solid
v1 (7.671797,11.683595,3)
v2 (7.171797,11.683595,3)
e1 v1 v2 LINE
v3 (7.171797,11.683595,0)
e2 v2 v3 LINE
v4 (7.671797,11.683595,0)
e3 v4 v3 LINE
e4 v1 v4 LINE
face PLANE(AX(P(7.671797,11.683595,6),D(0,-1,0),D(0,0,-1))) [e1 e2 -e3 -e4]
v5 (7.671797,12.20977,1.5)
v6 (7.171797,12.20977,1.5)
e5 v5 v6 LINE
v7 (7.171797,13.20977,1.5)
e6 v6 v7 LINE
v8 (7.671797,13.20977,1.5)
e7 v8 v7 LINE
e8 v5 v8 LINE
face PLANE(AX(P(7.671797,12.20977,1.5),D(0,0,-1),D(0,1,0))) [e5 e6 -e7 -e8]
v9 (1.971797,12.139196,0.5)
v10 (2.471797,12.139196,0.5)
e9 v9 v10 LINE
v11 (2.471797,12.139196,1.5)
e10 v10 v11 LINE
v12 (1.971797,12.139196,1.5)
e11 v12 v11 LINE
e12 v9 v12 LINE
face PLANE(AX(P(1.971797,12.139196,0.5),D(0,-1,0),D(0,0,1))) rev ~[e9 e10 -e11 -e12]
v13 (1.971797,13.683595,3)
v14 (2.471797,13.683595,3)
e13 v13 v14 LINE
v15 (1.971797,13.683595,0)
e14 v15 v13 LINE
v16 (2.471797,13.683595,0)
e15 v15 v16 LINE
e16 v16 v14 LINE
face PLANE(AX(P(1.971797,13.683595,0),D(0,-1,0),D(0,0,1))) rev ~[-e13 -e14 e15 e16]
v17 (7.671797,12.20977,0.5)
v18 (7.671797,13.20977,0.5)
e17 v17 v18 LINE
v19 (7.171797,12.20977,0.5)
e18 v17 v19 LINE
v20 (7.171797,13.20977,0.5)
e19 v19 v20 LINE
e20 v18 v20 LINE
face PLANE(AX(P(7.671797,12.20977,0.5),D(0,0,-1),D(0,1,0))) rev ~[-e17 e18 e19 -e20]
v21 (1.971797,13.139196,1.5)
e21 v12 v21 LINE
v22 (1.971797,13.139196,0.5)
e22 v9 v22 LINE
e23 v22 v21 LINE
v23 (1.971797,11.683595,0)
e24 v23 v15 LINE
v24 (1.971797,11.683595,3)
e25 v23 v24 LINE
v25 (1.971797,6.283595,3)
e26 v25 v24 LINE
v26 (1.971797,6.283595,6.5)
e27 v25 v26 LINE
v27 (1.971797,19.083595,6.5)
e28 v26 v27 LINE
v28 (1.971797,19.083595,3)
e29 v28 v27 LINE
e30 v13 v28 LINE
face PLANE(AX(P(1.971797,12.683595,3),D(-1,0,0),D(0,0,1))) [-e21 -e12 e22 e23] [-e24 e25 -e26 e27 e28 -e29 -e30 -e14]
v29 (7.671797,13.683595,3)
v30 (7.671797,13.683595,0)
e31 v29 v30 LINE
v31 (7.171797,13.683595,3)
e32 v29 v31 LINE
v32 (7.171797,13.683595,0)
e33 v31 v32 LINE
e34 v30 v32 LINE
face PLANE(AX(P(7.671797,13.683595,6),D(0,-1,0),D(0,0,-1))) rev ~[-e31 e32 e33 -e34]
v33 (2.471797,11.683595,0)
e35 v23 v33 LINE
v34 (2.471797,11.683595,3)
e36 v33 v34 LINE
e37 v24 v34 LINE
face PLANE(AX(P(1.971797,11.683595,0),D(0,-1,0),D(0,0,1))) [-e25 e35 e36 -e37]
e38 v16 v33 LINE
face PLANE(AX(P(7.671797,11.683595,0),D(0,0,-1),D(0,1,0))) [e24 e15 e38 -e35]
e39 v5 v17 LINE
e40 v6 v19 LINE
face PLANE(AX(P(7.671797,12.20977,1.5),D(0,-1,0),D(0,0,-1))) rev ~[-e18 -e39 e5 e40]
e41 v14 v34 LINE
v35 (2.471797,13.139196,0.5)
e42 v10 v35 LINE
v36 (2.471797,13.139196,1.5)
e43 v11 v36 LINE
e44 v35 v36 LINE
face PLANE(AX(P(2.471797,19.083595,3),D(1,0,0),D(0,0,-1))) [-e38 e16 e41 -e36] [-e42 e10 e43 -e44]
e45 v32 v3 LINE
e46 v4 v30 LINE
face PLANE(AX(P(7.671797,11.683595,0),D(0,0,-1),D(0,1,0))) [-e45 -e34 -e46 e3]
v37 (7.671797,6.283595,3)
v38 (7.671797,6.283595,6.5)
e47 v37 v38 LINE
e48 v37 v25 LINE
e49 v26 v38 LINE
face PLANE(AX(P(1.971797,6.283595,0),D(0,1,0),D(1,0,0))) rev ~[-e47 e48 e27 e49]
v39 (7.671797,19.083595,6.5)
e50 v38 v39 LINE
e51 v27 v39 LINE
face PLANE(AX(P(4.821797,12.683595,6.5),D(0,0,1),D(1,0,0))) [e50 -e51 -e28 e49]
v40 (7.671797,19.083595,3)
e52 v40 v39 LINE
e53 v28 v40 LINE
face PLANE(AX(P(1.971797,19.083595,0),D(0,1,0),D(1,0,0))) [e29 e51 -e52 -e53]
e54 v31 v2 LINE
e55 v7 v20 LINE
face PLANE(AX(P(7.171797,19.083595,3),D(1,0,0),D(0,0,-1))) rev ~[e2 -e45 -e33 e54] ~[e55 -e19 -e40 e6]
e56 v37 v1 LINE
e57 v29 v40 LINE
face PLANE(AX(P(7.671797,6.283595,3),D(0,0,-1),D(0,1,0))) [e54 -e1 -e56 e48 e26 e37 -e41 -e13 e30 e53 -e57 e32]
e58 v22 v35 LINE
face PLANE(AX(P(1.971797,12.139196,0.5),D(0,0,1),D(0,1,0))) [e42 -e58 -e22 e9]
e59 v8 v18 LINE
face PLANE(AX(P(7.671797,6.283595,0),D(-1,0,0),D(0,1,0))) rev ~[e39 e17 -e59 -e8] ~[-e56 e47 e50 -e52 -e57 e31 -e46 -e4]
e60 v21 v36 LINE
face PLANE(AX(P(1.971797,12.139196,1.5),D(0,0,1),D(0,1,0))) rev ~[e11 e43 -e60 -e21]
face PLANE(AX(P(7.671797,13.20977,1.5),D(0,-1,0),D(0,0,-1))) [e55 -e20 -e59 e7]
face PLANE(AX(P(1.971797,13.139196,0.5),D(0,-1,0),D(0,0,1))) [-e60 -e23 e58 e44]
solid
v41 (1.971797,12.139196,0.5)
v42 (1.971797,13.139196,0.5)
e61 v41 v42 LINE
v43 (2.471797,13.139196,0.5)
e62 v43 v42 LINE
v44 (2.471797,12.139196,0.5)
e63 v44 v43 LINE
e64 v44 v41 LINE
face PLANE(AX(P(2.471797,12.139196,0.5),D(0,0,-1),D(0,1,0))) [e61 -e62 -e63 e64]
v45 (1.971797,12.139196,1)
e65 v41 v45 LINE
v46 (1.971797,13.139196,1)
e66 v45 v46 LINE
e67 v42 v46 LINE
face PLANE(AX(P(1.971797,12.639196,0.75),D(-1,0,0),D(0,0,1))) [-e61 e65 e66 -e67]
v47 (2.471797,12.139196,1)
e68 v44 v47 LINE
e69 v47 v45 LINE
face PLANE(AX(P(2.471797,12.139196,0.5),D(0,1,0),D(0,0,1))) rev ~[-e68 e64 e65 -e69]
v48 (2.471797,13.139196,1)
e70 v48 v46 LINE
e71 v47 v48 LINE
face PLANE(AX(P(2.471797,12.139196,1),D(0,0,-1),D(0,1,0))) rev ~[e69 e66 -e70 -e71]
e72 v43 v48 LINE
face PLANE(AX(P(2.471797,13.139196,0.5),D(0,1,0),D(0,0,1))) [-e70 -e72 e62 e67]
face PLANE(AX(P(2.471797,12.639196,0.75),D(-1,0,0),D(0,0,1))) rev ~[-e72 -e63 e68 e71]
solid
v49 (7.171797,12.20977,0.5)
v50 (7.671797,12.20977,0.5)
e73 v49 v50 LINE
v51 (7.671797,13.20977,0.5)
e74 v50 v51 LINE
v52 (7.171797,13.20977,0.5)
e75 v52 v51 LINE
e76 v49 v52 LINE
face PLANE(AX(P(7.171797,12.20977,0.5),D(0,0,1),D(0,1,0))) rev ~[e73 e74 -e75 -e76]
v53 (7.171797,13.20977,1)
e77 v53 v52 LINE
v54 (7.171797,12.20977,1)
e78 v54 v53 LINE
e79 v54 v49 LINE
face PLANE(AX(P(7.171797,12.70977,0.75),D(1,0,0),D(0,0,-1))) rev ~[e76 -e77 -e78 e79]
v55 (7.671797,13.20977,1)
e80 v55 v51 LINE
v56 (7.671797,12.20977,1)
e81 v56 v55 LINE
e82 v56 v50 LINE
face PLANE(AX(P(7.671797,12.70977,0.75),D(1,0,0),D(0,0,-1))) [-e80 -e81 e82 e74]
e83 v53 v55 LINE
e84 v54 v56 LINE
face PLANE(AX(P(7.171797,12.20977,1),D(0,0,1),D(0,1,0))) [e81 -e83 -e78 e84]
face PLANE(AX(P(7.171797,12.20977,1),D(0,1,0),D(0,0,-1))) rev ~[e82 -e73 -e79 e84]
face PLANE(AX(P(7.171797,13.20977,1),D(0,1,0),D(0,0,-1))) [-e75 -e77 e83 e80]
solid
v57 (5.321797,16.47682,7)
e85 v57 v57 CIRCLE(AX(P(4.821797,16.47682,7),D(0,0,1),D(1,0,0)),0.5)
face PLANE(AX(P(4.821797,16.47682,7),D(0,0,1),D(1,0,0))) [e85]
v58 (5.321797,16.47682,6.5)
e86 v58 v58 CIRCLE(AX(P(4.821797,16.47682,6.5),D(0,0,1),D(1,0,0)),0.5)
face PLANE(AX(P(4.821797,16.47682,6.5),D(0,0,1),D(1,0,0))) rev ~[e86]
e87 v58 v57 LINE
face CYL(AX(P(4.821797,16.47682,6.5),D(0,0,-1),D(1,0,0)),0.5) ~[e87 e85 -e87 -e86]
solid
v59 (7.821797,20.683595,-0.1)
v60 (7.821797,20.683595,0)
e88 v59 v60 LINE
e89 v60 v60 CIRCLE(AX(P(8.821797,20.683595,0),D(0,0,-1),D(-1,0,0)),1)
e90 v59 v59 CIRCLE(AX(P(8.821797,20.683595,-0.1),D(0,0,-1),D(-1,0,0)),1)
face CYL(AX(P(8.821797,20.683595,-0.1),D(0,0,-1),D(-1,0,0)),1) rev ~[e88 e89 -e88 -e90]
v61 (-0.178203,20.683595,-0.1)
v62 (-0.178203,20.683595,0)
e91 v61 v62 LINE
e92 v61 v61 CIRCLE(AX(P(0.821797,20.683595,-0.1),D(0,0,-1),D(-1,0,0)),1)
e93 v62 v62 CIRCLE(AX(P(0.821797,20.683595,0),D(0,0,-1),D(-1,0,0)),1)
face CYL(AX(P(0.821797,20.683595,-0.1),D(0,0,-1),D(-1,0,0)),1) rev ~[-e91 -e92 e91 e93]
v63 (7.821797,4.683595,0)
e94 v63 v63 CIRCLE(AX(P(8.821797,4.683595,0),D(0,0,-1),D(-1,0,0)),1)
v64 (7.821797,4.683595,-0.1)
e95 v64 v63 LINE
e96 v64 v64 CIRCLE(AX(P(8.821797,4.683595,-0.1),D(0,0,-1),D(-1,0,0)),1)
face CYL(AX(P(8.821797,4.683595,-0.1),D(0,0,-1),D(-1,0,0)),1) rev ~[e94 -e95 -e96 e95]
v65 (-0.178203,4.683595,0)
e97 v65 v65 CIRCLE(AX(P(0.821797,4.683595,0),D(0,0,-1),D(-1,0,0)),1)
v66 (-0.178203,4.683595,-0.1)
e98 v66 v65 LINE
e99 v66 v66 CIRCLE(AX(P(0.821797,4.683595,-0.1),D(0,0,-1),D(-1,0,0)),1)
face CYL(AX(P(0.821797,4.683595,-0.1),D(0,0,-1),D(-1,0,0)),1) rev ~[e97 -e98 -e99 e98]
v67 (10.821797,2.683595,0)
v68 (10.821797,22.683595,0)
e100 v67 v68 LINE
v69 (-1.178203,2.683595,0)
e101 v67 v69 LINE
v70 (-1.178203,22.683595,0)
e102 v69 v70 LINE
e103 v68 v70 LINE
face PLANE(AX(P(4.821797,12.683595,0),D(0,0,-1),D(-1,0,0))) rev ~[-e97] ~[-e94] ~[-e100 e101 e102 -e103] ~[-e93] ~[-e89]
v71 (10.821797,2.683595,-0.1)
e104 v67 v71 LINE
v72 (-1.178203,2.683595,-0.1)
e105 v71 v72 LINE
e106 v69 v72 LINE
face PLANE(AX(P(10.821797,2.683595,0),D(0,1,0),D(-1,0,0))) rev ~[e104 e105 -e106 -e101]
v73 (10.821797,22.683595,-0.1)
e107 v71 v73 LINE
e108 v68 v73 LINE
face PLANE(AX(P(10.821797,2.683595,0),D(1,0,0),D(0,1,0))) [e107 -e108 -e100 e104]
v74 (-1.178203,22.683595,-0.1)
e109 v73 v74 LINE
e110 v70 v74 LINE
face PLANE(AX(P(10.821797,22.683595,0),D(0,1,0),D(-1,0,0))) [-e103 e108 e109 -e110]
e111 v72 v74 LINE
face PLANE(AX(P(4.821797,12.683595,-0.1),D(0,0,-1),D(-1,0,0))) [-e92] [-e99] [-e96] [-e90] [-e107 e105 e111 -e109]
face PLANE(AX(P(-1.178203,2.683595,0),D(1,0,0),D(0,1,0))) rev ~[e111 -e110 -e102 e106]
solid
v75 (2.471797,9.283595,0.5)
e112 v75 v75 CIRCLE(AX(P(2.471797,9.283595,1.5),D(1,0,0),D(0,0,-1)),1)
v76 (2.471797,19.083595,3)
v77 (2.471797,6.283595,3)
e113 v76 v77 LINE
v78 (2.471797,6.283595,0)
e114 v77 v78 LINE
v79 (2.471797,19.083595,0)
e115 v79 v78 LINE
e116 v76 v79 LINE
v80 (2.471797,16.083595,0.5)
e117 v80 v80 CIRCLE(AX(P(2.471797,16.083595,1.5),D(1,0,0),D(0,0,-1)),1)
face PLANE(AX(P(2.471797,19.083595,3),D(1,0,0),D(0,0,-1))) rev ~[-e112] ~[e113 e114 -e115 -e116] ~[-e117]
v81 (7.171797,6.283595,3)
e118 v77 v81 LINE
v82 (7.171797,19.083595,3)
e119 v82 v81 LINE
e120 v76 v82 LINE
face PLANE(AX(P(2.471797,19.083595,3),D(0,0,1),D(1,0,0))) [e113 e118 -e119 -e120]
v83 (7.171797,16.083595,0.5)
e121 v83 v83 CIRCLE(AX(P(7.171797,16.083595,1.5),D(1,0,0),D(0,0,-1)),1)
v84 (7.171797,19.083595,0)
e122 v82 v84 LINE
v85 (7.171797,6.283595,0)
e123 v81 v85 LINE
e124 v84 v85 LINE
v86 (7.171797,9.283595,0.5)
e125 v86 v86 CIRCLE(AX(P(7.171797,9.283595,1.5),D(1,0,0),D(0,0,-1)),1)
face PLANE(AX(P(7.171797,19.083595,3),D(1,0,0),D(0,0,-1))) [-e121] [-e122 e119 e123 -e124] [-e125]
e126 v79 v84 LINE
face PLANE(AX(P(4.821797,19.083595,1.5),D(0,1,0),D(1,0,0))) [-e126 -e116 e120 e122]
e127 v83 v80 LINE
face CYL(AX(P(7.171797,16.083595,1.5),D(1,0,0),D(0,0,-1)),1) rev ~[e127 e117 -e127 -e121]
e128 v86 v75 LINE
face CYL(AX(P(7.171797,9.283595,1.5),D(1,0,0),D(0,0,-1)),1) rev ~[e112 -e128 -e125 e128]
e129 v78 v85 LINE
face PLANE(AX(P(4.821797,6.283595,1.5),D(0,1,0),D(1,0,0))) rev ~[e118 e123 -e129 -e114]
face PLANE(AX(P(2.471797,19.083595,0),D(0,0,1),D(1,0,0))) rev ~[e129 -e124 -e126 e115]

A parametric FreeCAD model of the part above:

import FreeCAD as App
import Part
import Sketcher
from FreeCAD import Vector
Q = App.Units.Quantity

doc = App.newDocument("Part")
body = doc.addObject("PartDesign::Body", "Body")

sketch1 = body.newObject("Sketcher::SketchObject", "Sketch")
sketch1.AttachmentSupport = (doc.getObject("XY_Plane"), [""])
sketch1.MapMode = "FlatFace"
sketch1.addGeometry([
    Part.LineSegment(Vector(1.971797, 19.083595, 0), Vector(1.971797, 6.283595, 0)),
    Part.LineSegment(Vector(1.971797, 6.283595, 0), Vector(7.671797, 6.283595, 0)),
    Part.LineSegment(Vector(7.671797, 6.283595, 0), Vector(7.671797, 19.083595, 0)),
    Part.LineSegment(Vector(7.671797, 19.083595, 0), Vector(1.971797, 19.083595, 0)),
], False)
sketch1.addConstraint([
    Sketcher.Constraint("Coincident", 0, 2, 1, 1),
    Sketcher.Constraint("Coincident", 1, 2, 2, 1),
    Sketcher.Constraint("Coincident", 2, 2, 3, 1),
    Sketcher.Constraint("Coincident", 3, 2, 0, 1),
    Sketcher.Constraint("Vertical", 0),
    Sketcher.Constraint("Horizontal", 1),
    Sketcher.Constraint("Vertical", 2),
    Sketcher.Constraint("Horizontal", 3),
    Sketcher.Constraint("DistanceX", 1, 1, 1, 2, Q("5.7 mm")),
    Sketcher.Constraint("DistanceY", 0, 2, 0, 1, Q("12.8 mm")),
    Sketcher.Constraint("DistanceX", -1, 1, 0, 2, Q("1.971797 mm")),
    Sketcher.Constraint("DistanceY", -1, 1, 0, 2, Q("6.283595 mm")),
])
pad1 = body.newObject("PartDesign::Pad", "Pad")
pad1.Profile = sketch1
pad1.Length = 6.5

sketch2 = body.newObject("Sketcher::SketchObject", "Sketch001")
sketch2.AttachmentSupport = (doc.getObject("XY_Plane"), [""])
sketch2.MapMode = "FlatFace"
sketch2.AttachmentOffset = App.Placement(Vector(0, 0, 6.5), App.Rotation())
sketch2.addGeometry(Part.Circle(Vector(4.821797, 16.601773, 0), Vector(0, 0, 1), 0.575), False)
sketch2.addConstraint([
    Sketcher.Constraint("Diameter", 0, Q("1.15 mm")),
    Sketcher.Constraint("DistanceX", -1, 1, 0, 3, Q("4.821797 mm")),
    Sketcher.Constraint("DistanceY", -1, 1, 0, 3, Q("16.601773 mm")),
])
pad2 = body.newObject("PartDesign::Pad", "Pad001")
pad2.Profile = sketch2
pad2.Length = 0.5

sketch3 = body.newObject("Sketcher::SketchObject", "Sketch002")
sketch3.AttachmentSupport = (doc.getObject("YZ_Plane"), [""])
sketch3.MapMode = "FlatFace"
sketch3.AttachmentOffset = App.Placement(Vector(0, 0, 7.671797), App.Rotation())
sketch3.addGeometry([
    Part.LineSegment(Vector(19.083595, 3, 0), Vector(6.283595, 3, 0)),
    Part.LineSegment(Vector(6.283595, 3, 0), Vector(6.283595, 0, 0)),
    Part.LineSegment(Vector(6.283595, 0, 0), Vector(19.083595, 0, 0)),
    Part.LineSegment(Vector(19.083595, 0, 0), Vector(19.083595, 3, 0)),
], False)
sketch3.addConstraint([
    Sketcher.Constraint("Coincident", 0, 2, 1, 1),
    Sketcher.Constraint("Coincident", 1, 2, 2, 1),
    Sketcher.Constraint("Coincident", 2, 2, 3, 1),
    Sketcher.Constraint("Coincident", 3, 2, 0, 1),
    Sketcher.Constraint("Horizontal", 0),
    Sketcher.Constraint("Vertical", 1),
    Sketcher.Constraint("Horizontal", 2),
    Sketcher.Constraint("Vertical", 3),
    Sketcher.Constraint("PointOnObject", 1, 2, -1),
    Sketcher.Constraint("DistanceY", 1, 2, 1, 1, Q("3 mm")),
    Sketcher.Constraint("DistanceX", 0, 2, 0, 1, Q("12.8 mm")),
    Sketcher.Constraint("DistanceX", -1, 1, 0, 2, Q("6.283595 mm")),
])
pocket1 = body.newObject("PartDesign::Pocket", "Pocket")
pocket1.Profile = sketch3
pocket1.Length = 0.5

sketch4 = body.newObject("Sketcher::SketchObject", "Sketch003")
sketch4.AttachmentSupport = (doc.getObject("YZ_Plane"), [""])
sketch4.MapMode = "FlatFace"
sketch4.AttachmentOffset = App.Placement(Vector(0, 0, 1.971797), App.Rotation())
sketch4.addGeometry([
    Part.LineSegment(Vector(19.083595, 0, 0), Vector(6.283595, 0, 0)),
    Part.LineSegment(Vector(6.283595, 0, 0), Vector(6.283595, 3, 0)),
    Part.LineSegment(Vector(6.283595, 3, 0), Vector(19.083595, 3, 0)),
    Part.LineSegment(Vector(19.083595, 3, 0), Vector(19.083595, 0, 0)),
], False)
sketch4.addConstraint([
    Sketcher.Constraint("Coincident", 0, 2, 1, 1),
    Sketcher.Constraint("Coincident", 1, 2, 2, 1),
    Sketcher.Constraint("Coincident", 2, 2, 3, 1),
    Sketcher.Constraint("Coincident", 3, 2, 0, 1),
    Sketcher.Constraint("Horizontal", 0),
    Sketcher.Constraint("Vertical", 1),
    Sketcher.Constraint("Horizontal", 2),
    Sketcher.Constraint("Vertical", 3),
    Sketcher.Constraint("PointOnObject", 0, 2, -1),
    Sketcher.Constraint("DistanceY", 1, 1, 1, 2, Q("3 mm")),
    Sketcher.Constraint("DistanceX", 0, 2, 0, 1, Q("12.8 mm")),
    Sketcher.Constraint("DistanceX", -1, 1, 0, 2, Q("6.283595 mm")),
])
pocket2 = body.newObject("PartDesign::Pocket", "Pocket001")
pocket2.Profile = sketch4
pocket2.Length = 0.5
pocket2.Reversed = True

sketch5 = body.newObject("Sketcher::SketchObject", "Sketch004")
sketch5.AttachmentSupport = (doc.getObject("YZ_Plane"), [""])
sketch5.MapMode = "FlatFace"
sketch5.AttachmentOffset = App.Placement(Vector(0, 0, 7.171797), App.Rotation())
sketch5.addGeometry([
    Part.Circle(Vector(9.783595, 1.661402, 0), Vector(0, 0, 1), 1),
    Part.Circle(Vector(15.583595, 1.661402, 0), Vector(0, 0, 1), 1),
], False)
sketch5.addConstraint([
    Sketcher.Constraint("Equal", 0, 1),
    Sketcher.Constraint("Horizontal", 0, 3, 1, 3),
    Sketcher.Constraint("Diameter", 0, Q("2 mm")),
    Sketcher.Constraint("DistanceX", 0, 3, 1, 3, Q("5.8 mm")),
    Sketcher.Constraint("DistanceY", -1, 1, 0, 3, Q("1.661402 mm")),
    Sketcher.Constraint("DistanceX", -1, 1, 0, 3, Q("9.783595 mm")),
])
pocket3 = body.newObject("PartDesign::Pocket", "Pocket002")
pocket3.Profile = sketch5
pocket3.Type = "ThroughAll"

sketch6 = body.newObject("Sketcher::SketchObject", "Sketch005")
sketch6.AttachmentSupport = (doc.getObject("YZ_Plane"), [""])
sketch6.MapMode = "FlatFace"
sketch6.AttachmentOffset = App.Placement(Vector(0, 0, 1.971797), App.Rotation())
sketch6.addGeometry([
    Part.LineSegment(Vector(13.683595, 0, 0), Vector(11.683595, 0, 0)),
    Part.LineSegment(Vector(11.683595, 0, 0), Vector(11.683595, 6, 0)),
    Part.LineSegment(Vector(11.683595, 6, 0), Vector(13.683595, 6, 0)),
    Part.LineSegment(Vector(13.683595, 6, 0), Vector(13.683595, 0, 0)),
], False)
sketch6.addConstraint([
    Sketcher.Constraint("Coincident", 0, 2, 1, 1),
    Sketcher.Constraint("Coincident", 1, 2, 2, 1),
    Sketcher.Constraint("Coincident", 2, 2, 3, 1),
    Sketcher.Constraint("Coincident", 3, 2, 0, 1),
    Sketcher.Constraint("Horizontal", 0),
    Sketcher.Constraint("Vertical", 1),
    Sketcher.Constraint("Horizontal", 2),
    Sketcher.Constraint("Vertical", 3),
    Sketcher.Constraint("PointOnObject", 0, 2, -1),
    Sketcher.Constraint("DistanceX", 0, 2, 0, 1, Q("2 mm")),
    Sketcher.Constraint("DistanceY", 1, 1, 1, 2, Q("6 mm")),
    Sketcher.Constraint("DistanceX", -1, 1, 0, 2, Q("11.683595 mm")),
])
pad3 = body.newObject("PartDesign::Pad", "Pad002")
pad3.Profile = sketch6
pad3.Length = 0.5

sketch7 = body.newObject("Sketcher::SketchObject", "Sketch006")
sketch7.AttachmentSupport = (doc.getObject("YZ_Plane"), [""])
sketch7.MapMode = "FlatFace"
sketch7.AttachmentOffset = App.Placement(Vector(0, 0, 7.671797), App.Rotation())
sketch7.addGeometry([
    Part.LineSegment(Vector(13.683595, 6, 0), Vector(11.683595, 6, 0)),
    Part.LineSegment(Vector(11.683595, 6, 0), Vector(11.683595, 0, 0)),
    Part.LineSegment(Vector(11.683595, 0, 0), Vector(13.683595, 0, 0)),
    Part.LineSegment(Vector(13.683595, 0, 0), Vector(13.683595, 6, 0)),
], False)
sketch7.addConstraint([
    Sketcher.Constraint("Coincident", 0, 2, 1, 1),
    Sketcher.Constraint("Coincident", 1, 2, 2, 1),
    Sketcher.Constraint("Coincident", 2, 2, 3, 1),
    Sketcher.Constraint("Coincident", 3, 2, 0, 1),
    Sketcher.Constraint("Horizontal", 0),
    Sketcher.Constraint("Vertical", 1),
    Sketcher.Constraint("Horizontal", 2),
    Sketcher.Constraint("Vertical", 3),
    Sketcher.Constraint("PointOnObject", 1, 2, -1),
    Sketcher.Constraint("DistanceX", 0, 2, 0, 1, Q("2 mm")),
    Sketcher.Constraint("DistanceY", 1, 2, 1, 1, Q("6 mm")),
    Sketcher.Constraint("DistanceX", -1, 1, 0, 2, Q("11.683595 mm")),
])
pad4 = body.newObject("PartDesign::Pad", "Pad003")
pad4.Profile = sketch7
pad4.Length = 0.5
pad4.Reversed = True

sketch8 = body.newObject("Sketcher::SketchObject", "Sketch007")
sketch8.AttachmentSupport = (doc.getObject("XZ_Plane"), [""])
sketch8.MapMode = "FlatFace"
sketch8.AttachmentOffset = App.Placement(Vector(0, 0, -19.083595), App.Rotation())
sketch8.addGeometry([
    Part.LineSegment(Vector(2.471797, 0, 0), Vector(2.471797, 3, 0)),
    Part.LineSegment(Vector(2.471797, 3, 0), Vector(7.171797, 3, 0)),
    Part.LineSegment(Vector(7.171797, 3, 0), Vector(7.171797, 0, 0)),
    Part.LineSegment(Vector(7.171797, 0, 0), Vector(2.471797, 0, 0)),
], False)
sketch8.addConstraint([
    Sketcher.Constraint("Coincident", 0, 2, 1, 1),
    Sketcher.Constraint("Coincident", 1, 2, 2, 1),
    Sketcher.Constraint("Coincident", 2, 2, 3, 1),
    Sketcher.Constraint("Coincident", 3, 2, 0, 1),
    Sketcher.Constraint("Vertical", 0),
    Sketcher.Constraint("Horizontal", 1),
    Sketcher.Constraint("Vertical", 2),
    Sketcher.Constraint("Horizontal", 3),
    Sketcher.Constraint("PointOnObject", 2, 2, -1),
    Sketcher.Constraint("DistanceY", 0, 1, 0, 2, Q("3 mm")),
    Sketcher.Constraint("DistanceX", 1, 1, 1, 2, Q("4.7 mm")),
    Sketcher.Constraint("DistanceX", -1, 1, 0, 2, Q("2.471797 mm")),
])
pocket4 = body.newObject("PartDesign::Pocket", "Pocket003")
pocket4.Profile = sketch8
pocket4.Type = "ThroughAll"
pocket4.Reversed = True

sketch9 = body.newObject("Sketcher::SketchObject", "Sketch008")
sketch9.AttachmentSupport = (doc.getObject("XY_Plane"), [""])
sketch9.MapMode = "FlatFace"
sketch9.AttachmentOffset = App.Placement(Vector(0, 0, 7), App.Rotation())
sketch9.addGeometry(Part.Circle(Vector(4.821797, 16.601773, 0), Vector(0, 0, 1), 0.575), False)
sketch9.addConstraint([
    Sketcher.Constraint("Diameter", 0, Q("1.15 mm")),
    Sketcher.Constraint("DistanceX", -1, 1, 0, 3, Q("4.821797 mm")),
    Sketcher.Constraint("DistanceY", -1, 1, 0, 3, Q("16.601773 mm")),
])
pocket5 = body.newObject("PartDesign::Pocket", "Pocket004")
pocket5.Profile = sketch9
pocket5.Length = 0.5

sketch10 = body.newObject("Sketcher::SketchObject", "Sketch009")
sketch10.AttachmentSupport = (doc.getObject("YZ_Plane"), [""])
sketch10.MapMode = "FlatFace"
sketch10.AttachmentOffset = App.Placement(Vector(0, 0, 7.671797), App.Rotation())
sketch10.addGeometry([
    Part.LineSegment(Vector(13.20977, 1.5, 0), Vector(12.20977, 1.5, 0)),
    Part.LineSegment(Vector(12.20977, 1.5, 0), Vector(12.20977, 0.5, 0)),
    Part.LineSegment(Vector(12.20977, 0.5, 0), Vector(13.20977, 0.5, 0)),
    Part.LineSegment(Vector(13.20977, 0.5, 0), Vector(13.20977, 1.5, 0)),
], False)
sketch10.addConstraint([
    Sketcher.Constraint("Coincident", 0, 2, 1, 1),
    Sketcher.Constraint("Coincident", 1, 2, 2, 1),
    Sketcher.Constraint("Coincident", 2, 2, 3, 1),
    Sketcher.Constraint("Coincident", 3, 2, 0, 1),
    Sketcher.Constraint("Horizontal", 0),
    Sketcher.Constraint("Vertical", 1),
    Sketcher.Constraint("Horizontal", 2),
    Sketcher.Constraint("Vertical", 3),
    Sketcher.Constraint("Equal", 2, 1),
    Sketcher.Constraint("DistanceX", 0, 2, 0, 1, Q("1 mm")),
    Sketcher.Constraint("DistanceY", -1, 1, 0, 2, Q("1.5 mm")),
    Sketcher.Constraint("DistanceX", -1, 1, 0, 2, Q("12.20977 mm")),
])
pocket6 = body.newObject("PartDesign::Pocket", "Pocket005")
pocket6.Profile = sketch10
pocket6.Length = 0.5

sketch11 = body.newObject("Sketcher::SketchObject", "Sketch010")
sketch11.AttachmentSupport = (doc.getObject("YZ_Plane"), [""])
sketch11.MapMode = "FlatFace"
sketch11.AttachmentOffset = App.Placement(Vector(0, 0, 1.971797), App.Rotation())
sketch11.addGeometry([
    Part.LineSegment(Vector(13.139196, 0.5, 0), Vector(12.139196, 0.5, 0)),
    Part.LineSegment(Vector(12.139196, 0.5, 0), Vector(12.139196, 1.5, 0)),
    Part.LineSegment(Vector(12.139196, 1.5, 0), Vector(13.139196, 1.5, 0)),
    Part.LineSegment(Vector(13.139196, 1.5, 0), Vector(13.139196, 0.5, 0)),
], False)
sketch11.addConstraint([
    Sketcher.Constraint("Coincident", 0, 2, 1, 1),
    Sketcher.Constraint("Coincident", 1, 2, 2, 1),
    Sketcher.Constraint("Coincident", 2, 2, 3, 1),
    Sketcher.Constraint("Coincident", 3, 2, 0, 1),
    Sketcher.Constraint("Horizontal", 0),
    Sketcher.Constraint("Vertical", 1),
    Sketcher.Constraint("Horizontal", 2),
    Sketcher.Constraint("Vertical", 3),
    Sketcher.Constraint("Equal", 2, 1),
    Sketcher.Constraint("DistanceX", 0, 2, 0, 1, Q("1 mm")),
    Sketcher.Constraint("DistanceY", -1, 1, 0, 2, Q("0.5 mm")),
    Sketcher.Constraint("DistanceX", -1, 1, 0, 2, Q("12.139196 mm")),
])
pocket7 = body.newObject("PartDesign::Pocket", "Pocket006")
pocket7.Profile = sketch11
pocket7.Length = 0.5
pocket7.Reversed = True
body2 = doc.addObject("PartDesign::Body", "Body001")

sketch12 = body2.newObject("Sketcher::SketchObject", "Sketch011")
sketch12.AttachmentSupport = (doc.getObject("XZ_Plane001"), [""])
sketch12.MapMode = "FlatFace"
sketch12.AttachmentOffset = App.Placement(Vector(0, 0, -19.083595), App.Rotation())
sketch12.addGeometry([
    Part.LineSegment(Vector(2.471797, 0, 0), Vector(2.471797, 3, 0)),
    Part.LineSegment(Vector(2.471797, 3, 0), Vector(7.171797, 3, 0)),
    Part.LineSegment(Vector(7.171797, 3, 0), Vector(7.171797, 0, 0)),
    Part.LineSegment(Vector(7.171797, 0, 0), Vector(2.471797, 0, 0)),
], False)
sketch12.addConstraint([
    Sketcher.Constraint("Coincident", 0, 2, 1, 1),
    Sketcher.Constraint("Coincident", 1, 2, 2, 1),
    Sketcher.Constraint("Coincident", 2, 2, 3, 1),
    Sketcher.Constraint("Coincident", 3, 2, 0, 1),
    Sketcher.Constraint("Vertical", 0),
    Sketcher.Constraint("Horizontal", 1),
    Sketcher.Constraint("Vertical", 2),
    Sketcher.Constraint("Horizontal", 3),
    Sketcher.Constraint("PointOnObject", 2, 2, -1),
    Sketcher.Constraint("DistanceY", 0, 1, 0, 2, Q("3 mm")),
    Sketcher.Constraint("DistanceX", 1, 1, 1, 2, Q("4.7 mm")),
    Sketcher.Constraint("DistanceX", -1, 1, 0, 2, Q("2.471797 mm")),
])
pad5 = body2.newObject("PartDesign::Pad", "Pad004")
pad5.Profile = sketch12
pad5.Length = 12.8

sketch13 = body2.newObject("Sketcher::SketchObject", "Sketch012")
sketch13.AttachmentSupport = (doc.getObject("YZ_Plane001"), [""])
sketch13.MapMode = "FlatFace"
sketch13.AttachmentOffset = App.Placement(Vector(0, 0, 7.171797), App.Rotation())
sketch13.addGeometry([
    Part.Circle(Vector(16.083595, 1.5, 0), Vector(0, 0, 1), 1),
    Part.Circle(Vector(9.283595, 1.5, 0), Vector(0, 0, 1), 1),
], False)
sketch13.addConstraint([
    Sketcher.Constraint("Equal", 0, 1),
    Sketcher.Constraint("Horizontal", 0, 3, 1, 3),
    Sketcher.Constraint("Diameter", 0, Q("2 mm")),
    Sketcher.Constraint("DistanceY", -1, 1, 0, 3, Q("1.5 mm")),
    Sketcher.Constraint("DistanceX", 1, 3, 0, 3, Q("6.8 mm")),
    Sketcher.Constraint("DistanceX", -1, 1, 0, 3, Q("16.083595 mm")),
])
pocket8 = body2.newObject("PartDesign::Pocket", "Pocket007")
pocket8.Profile = sketch13
pocket8.Type = "ThroughAll"
body3 = doc.addObject("PartDesign::Body", "Body002")

sketch14 = body3.newObject("Sketcher::SketchObject", "Sketch013")
sketch14.AttachmentSupport = (doc.getObject("XY_Plane002"), [""])
sketch14.MapMode = "FlatFace"
sketch14.AttachmentOffset = App.Placement(Vector(0, 0, 6.5), App.Rotation())
sketch14.addGeometry(Part.Circle(Vector(4.821797, 16.47682, 0), Vector(0, 0, 1), 0.5), False)
sketch14.addConstraint([
    Sketcher.Constraint("Diameter", 0, Q("1 mm")),
    Sketcher.Constraint("DistanceY", -1, 1, 0, 3, Q("16.47682 mm")),
    Sketcher.Constraint("DistanceX", -1, 1, 0, 3, Q("4.821797 mm")),
])
pad6 = body3.newObject("PartDesign::Pad", "Pad005")
pad6.Profile = sketch14
pad6.Length = 0.5
body4 = doc.addObject("PartDesign::Body", "Body003")

sketch15 = body4.newObject("Sketcher::SketchObject", "Sketch014")
sketch15.AttachmentSupport = (doc.getObject("YZ_Plane003"), [""])
sketch15.MapMode = "FlatFace"
sketch15.AttachmentOffset = App.Placement(Vector(0, 0, 7.171797), App.Rotation())
sketch15.addGeometry([
    Part.LineSegment(Vector(13.20977, 1, 0), Vector(12.20977, 1, 0)),
    Part.LineSegment(Vector(12.20977, 1, 0), Vector(12.20977, 0.5, 0)),
    Part.LineSegment(Vector(12.20977, 0.5, 0), Vector(13.20977, 0.5, 0)),
    Part.LineSegment(Vector(13.20977, 0.5, 0), Vector(13.20977, 1, 0)),
], False)
sketch15.addConstraint([
    Sketcher.Constraint("Coincident", 0, 2, 1, 1),
    Sketcher.Constraint("Coincident", 1, 2, 2, 1),
    Sketcher.Constraint("Coincident", 2, 2, 3, 1),
    Sketcher.Constraint("Coincident", 3, 2, 0, 1),
    Sketcher.Constraint("Horizontal", 0),
    Sketcher.Constraint("Vertical", 1),
    Sketcher.Constraint("Horizontal", 2),
    Sketcher.Constraint("Vertical", 3),
    Sketcher.Constraint("DistanceX", 0, 2, 0, 1, Q("1 mm")),
    Sketcher.Constraint("DistanceY", 1, 2, 1, 1, Q("0.5 mm")),
    Sketcher.Constraint("DistanceY", -1, 1, 0, 2, Q("1 mm")),
    Sketcher.Constraint("DistanceX", -1, 1, 0, 2, Q("12.20977 mm")),
])
pad7 = body4.newObject("PartDesign::Pad", "Pad006")
pad7.Profile = sketch15
pad7.Length = 0.5
body5 = doc.addObject("PartDesign::Body", "Body004")

sketch16 = body5.newObject("Sketcher::SketchObject", "Sketch015")
sketch16.AttachmentSupport = (doc.getObject("YZ_Plane004"), [""])
sketch16.MapMode = "FlatFace"
sketch16.AttachmentOffset = App.Placement(Vector(0, 0, 2.471797), App.Rotation())
sketch16.addGeometry([
    Part.LineSegment(Vector(13.139196, 0.5, 0), Vector(12.139196, 0.5, 0)),
    Part.LineSegment(Vector(12.139196, 0.5, 0), Vector(12.139196, 1, 0)),
    Part.LineSegment(Vector(12.139196, 1, 0), Vector(13.139196, 1, 0)),
    Part.LineSegment(Vector(13.139196, 1, 0), Vector(13.139196, 0.5, 0)),
], False)
sketch16.addConstraint([
    Sketcher.Constraint("Coincident", 0, 2, 1, 1),
    Sketcher.Constraint("Coincident", 1, 2, 2, 1),
    Sketcher.Constraint("Coincident", 2, 2, 3, 1),
    Sketcher.Constraint("Coincident", 3, 2, 0, 1),
    Sketcher.Constraint("Horizontal", 0),
    Sketcher.Constraint("Vertical", 1),
    Sketcher.Constraint("Horizontal", 2),
    Sketcher.Constraint("Vertical", 3),
    Sketcher.Constraint("DistanceX", 0, 2, 0, 1, Q("1 mm")),
    Sketcher.Constraint("DistanceY", 1, 1, 1, 2, Q("0.5 mm")),
    Sketcher.Constraint("DistanceY", -1, 1, 1, 2, Q("1 mm")),
    Sketcher.Constraint("DistanceX", -1, 1, 0, 2, Q("12.139196 mm")),
])
pad8 = body5.newObject("PartDesign::Pad", "Pad007")
pad8.Profile = sketch16
pad8.Length = 0.5
pad8.Reversed = True
body6 = doc.addObject("PartDesign::Body", "Body005")

sketch17 = body6.newObject("Sketcher::SketchObject", "Sketch016")
sketch17.AttachmentSupport = (doc.getObject("XY_Plane005"), [""])
sketch17.MapMode = "FlatFace"
sketch17.addGeometry([
    Part.LineSegment(Vector(10.821797, 22.683595, 0), Vector(10.821797, 2.683595, 0)),
    Part.LineSegment(Vector(10.821797, 2.683595, 0), Vector(-1.178203, 2.683595, 0)),
    Part.LineSegment(Vector(-1.178203, 2.683595, 0), Vector(-1.178203, 22.683595, 0)),
    Part.LineSegment(Vector(-1.178203, 22.683595, 0), Vector(10.821797, 22.683595, 0)),
], False)
sketch17.addConstraint([
    Sketcher.Constraint("Coincident", 0, 2, 1, 1),
    Sketcher.Constraint("Coincident", 1, 2, 2, 1),
    Sketcher.Constraint("Coincident", 2, 2, 3, 1),
    Sketcher.Constraint("Coincident", 3, 2, 0, 1),
    Sketcher.Constraint("Vertical", 0),
    Sketcher.Constraint("Horizontal", 1),
    Sketcher.Constraint("Vertical", 2),
    Sketcher.Constraint("Horizontal", 3),
    Sketcher.Constraint("DistanceX", 1, 2, 1, 1, Q("12 mm")),
    Sketcher.Constraint("DistanceY", 0, 2, 0, 1, Q("20 mm")),
    Sketcher.Constraint("DistanceX", -1, 1, 0, 2, Q("10.821797 mm")),
    Sketcher.Constraint("DistanceY", -1, 1, 0, 2, Q("2.683595 mm")),
])
pad9 = body6.newObject("PartDesign::Pad", "Pad008")
pad9.Profile = sketch17
pad9.Length = 0.1
pad9.Reversed = True

sketch18 = body6.newObject("Sketcher::SketchObject", "Sketch017")
sketch18.AttachmentSupport = (doc.getObject("XY_Plane005"), [""])
sketch18.MapMode = "FlatFace"
sketch18.AttachmentOffset = App.Placement(Vector(0, 0, -0.1), App.Rotation())
sketch18.addGeometry([
    Part.Circle(Vector(8.821797, 20.683595, 0), Vector(0, 0, 1), 1),
    Part.Circle(Vector(8.821797, 4.683595, 0), Vector(0, 0, 1), 1),
    Part.Circle(Vector(0.821797, 4.683595, 0), Vector(0, 0, 1), 1),
    Part.Circle(Vector(0.821797, 20.683595, 0), Vector(0, 0, 1), 1),
], False)
sketch18.addConstraint([
    Sketcher.Constraint("Equal", 0, 1),
    Sketcher.Constraint("Equal", 1, 2),
    Sketcher.Constraint("Equal", 2, 3),
    Sketcher.Constraint("Horizontal", 1, 3, 2, 3),
    Sketcher.Constraint("Horizontal", 0, 3, 3, 3),
    Sketcher.Constraint("Vertical", 0, 3, 1, 3),
    Sketcher.Constraint("Vertical", 2, 3, 3, 3),
    Sketcher.Constraint("Diameter", 0, Q("2 mm")),
    Sketcher.Constraint("DistanceY", 1, 3, 0, 3, Q("16 mm")),
    Sketcher.Constraint("DistanceX", 2, 3, 1, 3, Q("8 mm")),
    Sketcher.Constraint("DistanceX", -1, 1, 0, 3, Q("8.821797 mm")),
    Sketcher.Constraint("DistanceY", -1, 1, 0, 3, Q("20.683595 mm")),
])
pocket9 = body6.newObject("PartDesign::Pocket", "Pocket008")
pocket9.Profile = sketch18
pocket9.Length = 10.1
pocket9.Reversed = True

doc.recompute()
